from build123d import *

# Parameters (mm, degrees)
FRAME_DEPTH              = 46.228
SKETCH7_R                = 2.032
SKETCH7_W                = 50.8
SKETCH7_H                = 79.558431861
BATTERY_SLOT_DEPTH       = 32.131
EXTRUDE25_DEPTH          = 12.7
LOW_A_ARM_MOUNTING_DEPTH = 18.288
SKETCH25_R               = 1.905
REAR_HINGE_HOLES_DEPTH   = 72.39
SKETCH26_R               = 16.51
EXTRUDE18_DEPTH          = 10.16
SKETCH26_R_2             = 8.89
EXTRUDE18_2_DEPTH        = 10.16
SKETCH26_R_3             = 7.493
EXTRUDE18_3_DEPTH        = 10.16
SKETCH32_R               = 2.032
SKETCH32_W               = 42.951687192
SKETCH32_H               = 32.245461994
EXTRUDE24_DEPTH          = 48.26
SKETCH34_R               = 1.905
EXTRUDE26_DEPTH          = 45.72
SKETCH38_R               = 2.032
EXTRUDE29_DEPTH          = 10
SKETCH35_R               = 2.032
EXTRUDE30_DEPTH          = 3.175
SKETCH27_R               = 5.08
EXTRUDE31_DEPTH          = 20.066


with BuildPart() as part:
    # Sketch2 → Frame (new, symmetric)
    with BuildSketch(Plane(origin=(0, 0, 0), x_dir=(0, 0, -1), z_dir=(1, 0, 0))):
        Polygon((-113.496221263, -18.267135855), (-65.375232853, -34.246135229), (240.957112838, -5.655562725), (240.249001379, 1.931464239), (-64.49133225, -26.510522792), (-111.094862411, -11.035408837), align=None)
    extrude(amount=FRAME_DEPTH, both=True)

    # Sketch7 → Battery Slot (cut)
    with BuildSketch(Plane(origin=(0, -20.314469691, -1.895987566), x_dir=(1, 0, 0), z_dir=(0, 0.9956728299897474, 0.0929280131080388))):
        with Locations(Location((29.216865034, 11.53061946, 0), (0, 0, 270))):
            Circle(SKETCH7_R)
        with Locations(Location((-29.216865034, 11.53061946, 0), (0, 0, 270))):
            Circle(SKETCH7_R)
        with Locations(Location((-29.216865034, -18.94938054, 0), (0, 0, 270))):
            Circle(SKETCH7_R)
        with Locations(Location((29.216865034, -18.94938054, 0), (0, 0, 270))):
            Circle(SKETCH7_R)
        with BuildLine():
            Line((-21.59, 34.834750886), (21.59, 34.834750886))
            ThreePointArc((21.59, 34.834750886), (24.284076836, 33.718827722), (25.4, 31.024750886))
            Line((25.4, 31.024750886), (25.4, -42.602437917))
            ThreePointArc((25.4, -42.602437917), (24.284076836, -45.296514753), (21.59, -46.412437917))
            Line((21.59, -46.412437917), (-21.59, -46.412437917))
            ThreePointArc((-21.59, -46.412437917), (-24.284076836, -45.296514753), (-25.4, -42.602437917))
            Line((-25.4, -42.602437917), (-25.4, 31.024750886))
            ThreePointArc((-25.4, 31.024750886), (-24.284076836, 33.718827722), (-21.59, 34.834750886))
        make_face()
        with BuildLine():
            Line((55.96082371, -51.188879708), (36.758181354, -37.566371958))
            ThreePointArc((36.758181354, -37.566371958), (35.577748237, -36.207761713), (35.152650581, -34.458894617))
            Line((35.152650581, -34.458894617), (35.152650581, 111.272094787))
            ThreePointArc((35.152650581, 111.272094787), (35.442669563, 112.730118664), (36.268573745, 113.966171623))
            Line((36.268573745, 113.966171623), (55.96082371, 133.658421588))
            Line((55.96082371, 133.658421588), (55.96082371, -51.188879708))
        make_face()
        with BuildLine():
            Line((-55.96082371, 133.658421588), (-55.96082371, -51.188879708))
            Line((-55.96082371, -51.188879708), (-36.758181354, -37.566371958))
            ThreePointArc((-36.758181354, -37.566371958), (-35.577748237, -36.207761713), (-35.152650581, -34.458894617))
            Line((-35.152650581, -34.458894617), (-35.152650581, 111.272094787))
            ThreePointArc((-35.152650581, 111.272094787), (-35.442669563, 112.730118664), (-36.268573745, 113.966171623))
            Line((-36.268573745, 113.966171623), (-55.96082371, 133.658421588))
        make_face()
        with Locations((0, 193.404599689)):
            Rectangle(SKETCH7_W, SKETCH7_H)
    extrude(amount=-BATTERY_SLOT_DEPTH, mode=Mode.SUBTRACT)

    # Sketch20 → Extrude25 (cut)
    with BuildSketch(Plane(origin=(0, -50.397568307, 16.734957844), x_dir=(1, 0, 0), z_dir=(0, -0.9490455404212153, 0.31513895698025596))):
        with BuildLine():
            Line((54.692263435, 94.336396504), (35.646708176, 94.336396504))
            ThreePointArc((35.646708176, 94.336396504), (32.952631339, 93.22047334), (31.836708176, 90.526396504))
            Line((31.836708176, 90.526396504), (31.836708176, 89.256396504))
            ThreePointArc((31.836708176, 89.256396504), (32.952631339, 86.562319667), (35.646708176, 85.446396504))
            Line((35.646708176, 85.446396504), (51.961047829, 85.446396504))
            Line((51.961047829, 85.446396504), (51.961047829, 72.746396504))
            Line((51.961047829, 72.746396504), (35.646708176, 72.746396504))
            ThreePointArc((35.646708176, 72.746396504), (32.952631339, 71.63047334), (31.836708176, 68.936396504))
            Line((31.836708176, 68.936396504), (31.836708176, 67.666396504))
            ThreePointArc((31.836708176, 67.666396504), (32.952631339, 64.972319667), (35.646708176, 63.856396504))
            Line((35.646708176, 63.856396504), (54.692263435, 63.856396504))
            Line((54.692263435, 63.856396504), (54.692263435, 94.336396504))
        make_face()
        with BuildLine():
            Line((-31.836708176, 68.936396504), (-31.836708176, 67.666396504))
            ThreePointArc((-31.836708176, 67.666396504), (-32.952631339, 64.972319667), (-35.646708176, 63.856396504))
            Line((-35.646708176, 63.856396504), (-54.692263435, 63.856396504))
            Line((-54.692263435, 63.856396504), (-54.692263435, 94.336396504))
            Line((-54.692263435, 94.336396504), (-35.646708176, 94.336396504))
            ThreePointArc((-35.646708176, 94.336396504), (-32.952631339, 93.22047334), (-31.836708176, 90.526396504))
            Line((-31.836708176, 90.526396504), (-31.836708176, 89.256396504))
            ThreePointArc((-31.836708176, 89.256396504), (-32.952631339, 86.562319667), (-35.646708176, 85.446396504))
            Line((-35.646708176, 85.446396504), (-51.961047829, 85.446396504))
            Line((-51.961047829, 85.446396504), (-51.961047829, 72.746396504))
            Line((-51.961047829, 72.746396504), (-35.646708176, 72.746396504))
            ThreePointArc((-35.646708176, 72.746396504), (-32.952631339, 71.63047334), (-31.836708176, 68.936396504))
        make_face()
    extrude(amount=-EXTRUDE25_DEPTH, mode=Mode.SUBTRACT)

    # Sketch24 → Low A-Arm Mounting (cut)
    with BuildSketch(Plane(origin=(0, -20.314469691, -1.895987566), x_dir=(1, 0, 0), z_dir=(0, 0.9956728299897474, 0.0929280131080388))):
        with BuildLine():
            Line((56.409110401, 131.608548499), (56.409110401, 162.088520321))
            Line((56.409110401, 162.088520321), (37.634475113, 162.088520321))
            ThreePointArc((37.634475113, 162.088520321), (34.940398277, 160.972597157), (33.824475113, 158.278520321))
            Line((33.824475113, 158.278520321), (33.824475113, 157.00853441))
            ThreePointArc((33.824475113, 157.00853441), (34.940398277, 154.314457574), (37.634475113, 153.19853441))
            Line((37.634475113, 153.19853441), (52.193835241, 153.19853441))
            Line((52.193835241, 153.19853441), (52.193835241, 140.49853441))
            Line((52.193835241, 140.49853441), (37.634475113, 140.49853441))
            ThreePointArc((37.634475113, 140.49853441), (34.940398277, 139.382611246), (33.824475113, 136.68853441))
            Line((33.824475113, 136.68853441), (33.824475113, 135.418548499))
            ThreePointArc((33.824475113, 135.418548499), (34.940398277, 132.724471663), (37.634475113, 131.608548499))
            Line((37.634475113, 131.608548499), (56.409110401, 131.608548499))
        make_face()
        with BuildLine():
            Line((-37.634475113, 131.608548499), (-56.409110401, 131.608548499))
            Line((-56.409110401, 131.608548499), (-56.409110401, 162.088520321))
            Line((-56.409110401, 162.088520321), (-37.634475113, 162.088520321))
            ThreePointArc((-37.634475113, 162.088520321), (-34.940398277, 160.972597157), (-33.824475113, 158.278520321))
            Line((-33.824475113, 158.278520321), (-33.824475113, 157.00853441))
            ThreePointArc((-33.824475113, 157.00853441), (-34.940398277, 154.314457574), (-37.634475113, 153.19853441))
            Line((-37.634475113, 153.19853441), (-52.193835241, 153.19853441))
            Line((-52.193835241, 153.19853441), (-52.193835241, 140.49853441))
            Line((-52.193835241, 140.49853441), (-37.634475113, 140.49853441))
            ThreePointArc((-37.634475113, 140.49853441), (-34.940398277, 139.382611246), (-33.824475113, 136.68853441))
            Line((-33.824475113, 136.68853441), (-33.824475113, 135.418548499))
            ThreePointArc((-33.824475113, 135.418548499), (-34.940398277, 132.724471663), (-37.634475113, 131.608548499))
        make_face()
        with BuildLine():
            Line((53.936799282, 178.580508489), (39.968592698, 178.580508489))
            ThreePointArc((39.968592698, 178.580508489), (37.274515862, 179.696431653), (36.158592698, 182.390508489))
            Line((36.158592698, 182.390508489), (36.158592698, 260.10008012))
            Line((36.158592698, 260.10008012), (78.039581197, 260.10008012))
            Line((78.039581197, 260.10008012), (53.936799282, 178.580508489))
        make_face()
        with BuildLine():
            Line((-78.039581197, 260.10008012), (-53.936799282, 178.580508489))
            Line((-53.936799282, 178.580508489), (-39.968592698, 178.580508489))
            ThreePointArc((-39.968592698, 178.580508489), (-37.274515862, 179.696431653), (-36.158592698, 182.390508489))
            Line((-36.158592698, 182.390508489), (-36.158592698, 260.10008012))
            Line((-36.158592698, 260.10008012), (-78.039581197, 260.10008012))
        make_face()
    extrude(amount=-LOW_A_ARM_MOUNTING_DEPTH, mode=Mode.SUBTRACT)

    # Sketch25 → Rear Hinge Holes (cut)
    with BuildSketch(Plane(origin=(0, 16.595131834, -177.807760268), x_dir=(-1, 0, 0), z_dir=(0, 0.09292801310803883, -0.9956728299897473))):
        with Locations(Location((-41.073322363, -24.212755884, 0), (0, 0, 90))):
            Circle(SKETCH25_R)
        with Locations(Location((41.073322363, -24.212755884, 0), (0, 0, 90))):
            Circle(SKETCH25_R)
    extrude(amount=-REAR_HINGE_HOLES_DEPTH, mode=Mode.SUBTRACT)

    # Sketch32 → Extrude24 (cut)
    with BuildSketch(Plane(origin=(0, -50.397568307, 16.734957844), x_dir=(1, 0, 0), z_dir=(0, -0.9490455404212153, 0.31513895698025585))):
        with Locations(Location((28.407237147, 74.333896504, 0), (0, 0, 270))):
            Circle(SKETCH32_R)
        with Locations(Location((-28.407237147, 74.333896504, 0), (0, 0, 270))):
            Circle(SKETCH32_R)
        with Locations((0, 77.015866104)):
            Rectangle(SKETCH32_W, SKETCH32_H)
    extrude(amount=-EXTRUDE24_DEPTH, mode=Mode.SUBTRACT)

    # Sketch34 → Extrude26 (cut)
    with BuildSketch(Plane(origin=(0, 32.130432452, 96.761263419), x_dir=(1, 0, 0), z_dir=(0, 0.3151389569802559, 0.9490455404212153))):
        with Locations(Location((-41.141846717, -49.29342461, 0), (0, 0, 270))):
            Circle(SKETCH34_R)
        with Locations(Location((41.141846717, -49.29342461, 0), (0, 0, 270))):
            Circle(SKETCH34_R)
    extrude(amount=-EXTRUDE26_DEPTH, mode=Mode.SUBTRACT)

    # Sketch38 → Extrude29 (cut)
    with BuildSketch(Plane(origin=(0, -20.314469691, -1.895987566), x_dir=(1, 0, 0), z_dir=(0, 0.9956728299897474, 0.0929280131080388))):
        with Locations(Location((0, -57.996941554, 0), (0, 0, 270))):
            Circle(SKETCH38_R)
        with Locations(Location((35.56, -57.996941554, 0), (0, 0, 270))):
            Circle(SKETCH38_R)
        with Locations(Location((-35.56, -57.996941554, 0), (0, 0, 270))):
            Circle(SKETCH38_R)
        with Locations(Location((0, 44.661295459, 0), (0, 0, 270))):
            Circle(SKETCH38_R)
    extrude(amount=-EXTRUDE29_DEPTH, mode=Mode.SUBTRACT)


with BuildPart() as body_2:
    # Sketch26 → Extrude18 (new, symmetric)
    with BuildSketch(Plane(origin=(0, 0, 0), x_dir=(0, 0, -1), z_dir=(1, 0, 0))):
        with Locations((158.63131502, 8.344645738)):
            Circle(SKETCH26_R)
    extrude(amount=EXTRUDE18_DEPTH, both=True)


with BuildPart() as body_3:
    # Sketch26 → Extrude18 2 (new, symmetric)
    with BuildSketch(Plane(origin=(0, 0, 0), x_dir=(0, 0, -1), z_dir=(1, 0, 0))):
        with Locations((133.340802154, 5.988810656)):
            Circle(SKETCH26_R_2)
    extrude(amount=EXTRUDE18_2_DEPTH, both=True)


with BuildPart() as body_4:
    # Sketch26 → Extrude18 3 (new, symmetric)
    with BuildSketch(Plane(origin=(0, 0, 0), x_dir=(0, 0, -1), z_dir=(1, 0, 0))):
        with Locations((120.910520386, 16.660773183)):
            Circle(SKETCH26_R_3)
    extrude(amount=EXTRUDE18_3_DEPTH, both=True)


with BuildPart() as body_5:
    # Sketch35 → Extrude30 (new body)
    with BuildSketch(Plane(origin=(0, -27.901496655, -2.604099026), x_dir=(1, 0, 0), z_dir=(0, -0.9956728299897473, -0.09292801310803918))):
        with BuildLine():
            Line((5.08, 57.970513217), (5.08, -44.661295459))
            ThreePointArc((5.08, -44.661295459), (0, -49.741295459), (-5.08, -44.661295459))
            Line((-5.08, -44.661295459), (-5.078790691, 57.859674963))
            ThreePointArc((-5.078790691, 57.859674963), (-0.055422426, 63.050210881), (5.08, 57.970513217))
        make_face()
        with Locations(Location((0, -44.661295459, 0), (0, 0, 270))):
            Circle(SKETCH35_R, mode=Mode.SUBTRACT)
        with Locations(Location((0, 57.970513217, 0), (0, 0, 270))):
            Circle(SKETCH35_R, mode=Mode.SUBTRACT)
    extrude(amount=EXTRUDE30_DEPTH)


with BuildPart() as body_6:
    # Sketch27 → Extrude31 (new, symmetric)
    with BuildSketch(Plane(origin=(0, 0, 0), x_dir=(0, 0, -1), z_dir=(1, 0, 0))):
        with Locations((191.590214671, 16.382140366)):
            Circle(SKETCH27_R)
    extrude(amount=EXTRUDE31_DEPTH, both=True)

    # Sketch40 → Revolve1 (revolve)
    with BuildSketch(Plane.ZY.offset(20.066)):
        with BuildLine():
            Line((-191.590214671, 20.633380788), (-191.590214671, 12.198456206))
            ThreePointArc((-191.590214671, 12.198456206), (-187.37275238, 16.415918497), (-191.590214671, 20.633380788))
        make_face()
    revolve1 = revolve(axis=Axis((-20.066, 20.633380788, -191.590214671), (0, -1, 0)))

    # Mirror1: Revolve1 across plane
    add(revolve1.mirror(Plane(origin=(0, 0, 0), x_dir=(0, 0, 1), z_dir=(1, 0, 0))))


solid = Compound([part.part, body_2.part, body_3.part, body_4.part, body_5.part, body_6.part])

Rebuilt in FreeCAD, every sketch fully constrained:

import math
import FreeCAD as App
import Part
import Sketcher
Q = App.Units.Quantity

doc = App.newDocument("Part")
body = doc.addObject("PartDesign::Body", "Body")

# Sketch on YZ plane
sketch1 = body.newObject("Sketcher::SketchObject", "Sketch")
sketch1.AttachmentSupport = (doc.getObject("YZ_Plane"), [""])
sketch1.MapMode = "FlatFace"
sketch1.addGeometry([
    Part.LineSegment(App.Vector(-18, 113, 0), App.Vector(-34, 65, 0)),  # 0
    Part.LineSegment(App.Vector(-34, 65, 0), App.Vector(-6, -241, 0)),  # 1
    Part.LineSegment(App.Vector(-6, -241, 0), App.Vector(2, -240, 0)),  # 2
    Part.LineSegment(App.Vector(2, -240, 0), App.Vector(-27, 64, 0)),  # 3
    Part.LineSegment(App.Vector(-27, 64, 0), App.Vector(-11, 111, 0)),  # 4
    Part.LineSegment(App.Vector(-11, 111, 0), App.Vector(-18, 113, 0)),  # 5
], False)
sketch1.addConstraint([
    Sketcher.Constraint("Coincident", 0, 2, 1, 1),
    Sketcher.Constraint("Coincident", 1, 2, 2, 1),
    Sketcher.Constraint("Coincident", 2, 2, 3, 1),
    Sketcher.Constraint("Coincident", 3, 2, 4, 1),
    Sketcher.Constraint("Coincident", 4, 2, 5, 1),
    Sketcher.Constraint("Coincident", 5, 2, 0, 1),
    Sketcher.Constraint("Perpendicular", 1, 2),
    Sketcher.Constraint("Perpendicular", 2, 3),
    Sketcher.Constraint("Parallel", 0, 4),
    Sketcher.Constraint("Perpendicular", 4, 5),
    Sketcher.Constraint("Equal", 2, 5),
    Sketcher.Constraint("Distance", 2, Q("0.3 in")),
    Sketcher.Constraint("DistanceY", 2, 2, -1, 1, Q("240.249001 mm")),
    Sketcher.Constraint("DistanceX", 0, 2, 2, 2, Q("36.177599 mm")),
    Sketcher.Constraint("DistanceY", 3, 2, 0, 2, Q("0.883901 mm")),
    Sketcher.Constraint("DistanceX", 0, 2, 5, 2, Q("15.978999 mm")),
    Sketcher.Constraint("Distance", 1, Q("307.663659 mm")),
    Sketcher.Constraint("DistanceX", 4, 2, -1, 1, Q("11.035409 mm")),
])
pad1 = body.newObject("PartDesign::Pad", "Pad")
pad1.Profile = sketch1
pad1.Length = Q("3.64 in")
pad1.Midplane = True

# Sketch on an angled plane
sketch2 = body.newObject("Sketcher::SketchObject", "Sketch001")
sketch2.Placement = App.Placement(App.Vector(0, -20.31447, -1.895988), App.Rotation(App.Vector(1, 0, 0), App.Vector(0, 0.092928013, -0.99567283), App.Vector(0, 0.99567283, 0.092928013), "ZXY"))
sketch2.addGeometry([
    Part.Circle(App.Vector(29.2, 11.5, 0), App.Vector(0, 0, 1), 2),  # 0
    Part.Circle(App.Vector(-29.2, 11.5, 0), App.Vector(0, 0, 1), 2),  # 1
    Part.Circle(App.Vector(-29.2, -18.9, 0), App.Vector(0, 0, 1), 2),  # 2
    Part.Circle(App.Vector(29.2, -18.9, 0), App.Vector(0, 0, 1), 2),  # 3
    Part.LineSegment(App.Vector(21.6, 34.8, 0), App.Vector(-21.6, 34.8, 0)),  # 4
    Part.ArcOfCircle(Part.Circle(App.Vector(-21.6, 31, 0), App.Vector(0, 0, 1), 3.8), math.radians(90), math.radians(180)),  # 5
    Part.LineSegment(App.Vector(-25.4, 31, 0), App.Vector(-25.4, -42.6, 0)),  # 6
    Part.ArcOfCircle(Part.Circle(App.Vector(-21.6, -42.6, 0), App.Vector(0, 0, 1), 3.8), math.radians(-180), math.radians(-90)),  # 7
    Part.LineSegment(App.Vector(-21.6, -46.4, 0), App.Vector(21.6, -46.4, 0)),  # 8
    Part.ArcOfCircle(Part.Circle(App.Vector(21.6, -42.6, 0), App.Vector(0, 0, 1), 3.8), math.radians(-90), math.radians(0)),  # 9
    Part.LineSegment(App.Vector(25.4, -42.6, 0), App.Vector(25.4, 31, 0)),  # 10
    Part.ArcOfCircle(Part.Circle(App.Vector(21.6, 31, 0), App.Vector(0, 0, 1), 3.8), math.radians(0), math.radians(90)),  # 11
    Part.LineSegment(App.Vector(36.8, -37.6, 0), App.Vector(56, -51.2, 0)),  # 12
    Part.LineSegment(App.Vector(56, -51.2, 0), App.Vector(56, 133.7, 0)),  # 13
    Part.LineSegment(App.Vector(56, 133.7, 0), App.Vector(36.3, 114, 0)),  # 14
    Part.ArcOfCircle(Part.Circle(App.Vector(39, 111.3, 0), App.Vector(0, 0, 1), 3.8), math.radians(135), math.radians(180)),  # 15
    Part.LineSegment(App.Vector(35.2, 111.3, 0), App.Vector(35.2, -34.5, 0)),  # 16
    Part.ArcOfCircle(Part.Circle(App.Vector(39, -34.5, 0), App.Vector(0, 0, 1), 3.8), math.radians(-180), math.radians(-125)),  # 17
    Part.LineSegment(App.Vector(-56, 133.7, 0), App.Vector(-56, -51.2, 0)),  # 18
    Part.LineSegment(App.Vector(-56, -51.2, 0), App.Vector(-36.8, -37.6, 0)),  # 19
    Part.ArcOfCircle(Part.Circle(App.Vector(-39, -34.5, 0), App.Vector(0, 0, 1), 3.8), math.radians(-55), math.radians(0)),  # 20
    Part.LineSegment(App.Vector(-35.2, -34.5, 0), App.Vector(-35.2, 111.3, 0)),  # 21
    Part.ArcOfCircle(Part.Circle(App.Vector(-39, 111.3, 0), App.Vector(0, 0, 1), 3.8), math.radians(0), math.radians(45)),  # 22
    Part.LineSegment(App.Vector(-36.3, 114, 0), App.Vector(-56, 133.7, 0)),  # 23
    Part.LineSegment(App.Vector(-25.4, 233.2, 0), App.Vector(-25.4, 153.6, 0)),  # 24
    Part.LineSegment(App.Vector(-25.4, 153.6, 0), App.Vector(25.4, 153.6, 0)),  # 25
    Part.LineSegment(App.Vector(25.4, 153.6, 0), App.Vector(25.4, 233.2, 0)),  # 26
    Part.LineSegment(App.Vector(25.4, 233.2, 0), App.Vector(-25.4, 233.2, 0)),  # 27
], False)
sketch2.addConstraint([
    Sketcher.Constraint("Tangent", 4, 2, 5, 1),
    Sketcher.Constraint("Tangent", 5, 2, 6, 1),
    Sketcher.Constraint("Tangent", 6, 2, 7, 1),
    Sketcher.Constraint("Tangent", 7, 2, 8, 1),
    Sketcher.Constraint("Tangent", 8, 2, 9, 1),
    Sketcher.Constraint("Tangent", 9, 2, 10, 1),
    Sketcher.Constraint("Tangent", 10, 2, 11, 1),
    Sketcher.Constraint("Tangent", 11, 2, 4, 1),
    Sketcher.Constraint("Coincident", 12, 2, 13, 1),
    Sketcher.Constraint("Coincident", 13, 2, 14, 1),
    Sketcher.Constraint("Tangent", 14, 2, 15, 1),
    Sketcher.Constraint("Tangent", 15, 2, 16, 1),
    Sketcher.Constraint("Tangent", 16, 2, 17, 1),
    Sketcher.Constraint("Tangent", 17, 2, 12, 1),
    Sketcher.Constraint("Coincident", 18, 2, 19, 1),
    Sketcher.Constraint("Tangent", 19, 2, 20, 1),
    Sketcher.Constraint("Tangent", 20, 2, 21, 1),
    Sketcher.Constraint("Tangent", 21, 2, 22, 1),
    Sketcher.Constraint("Tangent", 22, 2, 23, 1),
    Sketcher.Constraint("Coincident", 23, 2, 18, 1),
    Sketcher.Constraint("Coincident", 24, 2, 25, 1),
    Sketcher.Constraint("Coincident", 25, 2, 26, 1),
    Sketcher.Constraint("Coincident", 26, 2, 27, 1),
    Sketcher.Constraint("Coincident", 27, 2, 24, 1),
    Sketcher.Constraint("Horizontal", 4),
    Sketcher.Constraint("Vertical", 6),
    Sketcher.Constraint("Horizontal", 8),
    Sketcher.Constraint("Vertical", 10),
    Sketcher.Constraint("Vertical", 13),
    Sketcher.Constraint("Vertical", 16),
    Sketcher.Constraint("Vertical", 18),
    Sketcher.Constraint("Vertical", 21),
    Sketcher.Constraint("Vertical", 24),
    Sketcher.Constraint("Horizontal", 25),
    Sketcher.Constraint("Vertical", 26),
    Sketcher.Constraint("Horizontal", 27),
    Sketcher.Constraint("Equal", 0, 1),
    Sketcher.Constraint("Equal", 1, 2),
    Sketcher.Constraint("Equal", 2, 3),
    Sketcher.Constraint("Equal", 5, 7),
    Sketcher.Constraint("Equal", 7, 9),
    Sketcher.Constraint("Equal", 9, 11),
    Sketcher.Constraint("Equal", 11, 15),
    Sketcher.Constraint("Equal", 15, 17),
    Sketcher.Constraint("Equal", 17, 20),
    Sketcher.Constraint("Equal", 20, 22),
    Sketcher.Constraint("Symmetric", 0, 3, 1, 3, -2),
    Sketcher.Constraint("Symmetric", 2, 3, 3, 3, -2),
    Sketcher.Constraint("Symmetric", 17, 3, 20, 3, -2),
    Sketcher.Constraint("Symmetric", 12, 2, 18, 2, -2),
    Sketcher.Constraint("Symmetric", 14, 2, 22, 2, -2),
    Sketcher.Constraint("Perpendicular", 14, 23),
    Sketcher.Constraint("Vertical", 1, 3, 2, 3),
    Sketcher.Constraint("Vertical", 6, 2, 24, 2),
    Sketcher.Constraint("Vertical", 10, 2, 25, 2),
    Sketcher.Constraint("Diameter", 0, Q("0.16 in")),
    Sketcher.Constraint("DistanceX", 25, 1, 25, 2, Q("2 in")),
    Sketcher.Constraint("Radius", 5, Q("0.15 in")),
    Sketcher.Constraint("DistanceX", 5, 2, -1, 1, Q("1 in")),
    Sketcher.Constraint("DistanceY", 2, 3, 1, 3, Q("1.2 in")),
    Sketcher.Constraint("DistanceY", 13, 1, 13, 2, Q("184.847301 mm")),
    Sketcher.Constraint("DistanceY", 6, 2, 6, 1, Q("73.627189 mm")),
    Sketcher.Constraint("DistanceY", 16, 2, 16, 1, Q("145.730989 mm")),
    Sketcher.Constraint("DistanceY", 24, 2, 24, 1, Q("79.558432 mm")),
    Sketcher.Constraint("DistanceX", 22, 3, 15, 3, Q("77.925301 mm")),
    Sketcher.Constraint("DistanceY", 12, 2, 3, 3, Q("32.239499 mm")),
    Sketcher.Constraint("DistanceY", -1, 1, 0, 3, Q("11.530619 mm")),
    Sketcher.Constraint("DistanceY", -1, 1, 5, 3, Q("31.024751 mm")),
    Sketcher.Constraint("DistanceY", -1, 1, 14, 2, Q("113.966172 mm")),
    Sketcher.Constraint("DistanceX", 1, 3, 0, 3, Q("58.43373 mm")),
    Sketcher.Constraint("DistanceY", 21, 2, 24, 2, Q("42.353289 mm")),
])
pocket1 = body.newObject("PartDesign::Pocket", "Pocket")
pocket1.Profile = sketch2
pocket1.Length = Q("1.265 in")

# Sketch on an angled plane
sketch3 = body.newObject("Sketcher::SketchObject", "Sketch002")
sketch3.Placement = App.Placement(App.Vector(0, -50.397568, 16.734958), App.Rotation(App.Vector(1, 0, 0), App.Vector(0, 0.315138957, 0.94904554), App.Vector(0, -0.94904554, 0.315138957), "ZXY"))
sketch3.addGeometry([
    Part.LineSegment(App.Vector(54.7, 94.3, 0), App.Vector(35.6, 94.3, 0)),  # 0
    Part.ArcOfCircle(Part.Circle(App.Vector(35.6, 90.5, 0), App.Vector(0, 0, 1), 3.8), math.radians(90), math.radians(180)),  # 1
    Part.LineSegment(App.Vector(31.8, 90.5, 0), App.Vector(31.8, 89.3, 0)),  # 2
    Part.ArcOfCircle(Part.Circle(App.Vector(35.6, 89.3, 0), App.Vector(0, 0, 1), 3.8), math.radians(180), math.radians(270)),  # 3
    Part.LineSegment(App.Vector(35.6, 85.4, 0), App.Vector(52, 85.4, 0)),  # 4
    Part.LineSegment(App.Vector(52, 85.4, 0), App.Vector(52, 72.7, 0)),  # 5
    Part.LineSegment(App.Vector(52, 72.7, 0), App.Vector(35.6, 72.7, 0)),  # 6
    Part.ArcOfCircle(Part.Circle(App.Vector(35.6, 68.9, 0), App.Vector(0, 0, 1), 3.8), math.radians(90), math.radians(180)),  # 7
    Part.LineSegment(App.Vector(31.8, 68.9, 0), App.Vector(31.8, 67.7, 0)),  # 8
    Part.ArcOfCircle(Part.Circle(App.Vector(35.6, 67.7, 0), App.Vector(0, 0, 1), 3.8), math.radians(180), math.radians(270)),  # 9
    Part.LineSegment(App.Vector(35.6, 63.9, 0), App.Vector(54.7, 63.9, 0)),  # 10
    Part.LineSegment(App.Vector(54.7, 63.9, 0), App.Vector(54.7, 94.3, 0)),  # 11
    Part.LineSegment(App.Vector(-31.8, 67.7, 0), App.Vector(-31.8, 68.9, 0)),  # 12
    Part.ArcOfCircle(Part.Circle(App.Vector(-35.6, 68.9, 0), App.Vector(0, 0, 1), 3.8), math.radians(0), math.radians(90)),  # 13
    Part.LineSegment(App.Vector(-35.6, 72.7, 0), App.Vector(-52, 72.7, 0)),  # 14
    Part.LineSegment(App.Vector(-52, 72.7, 0), App.Vector(-52, 85.4, 0)),  # 15
    Part.LineSegment(App.Vector(-52, 85.4, 0), App.Vector(-35.6, 85.4, 0)),  # 16
    Part.ArcOfCircle(Part.Circle(App.Vector(-35.6, 89.3, 0), App.Vector(0, 0, 1), 3.8), math.radians(-90), math.radians(0)),  # 17
    Part.LineSegment(App.Vector(-31.8, 89.3, 0), App.Vector(-31.8, 90.5, 0)),  # 18
    Part.ArcOfCircle(Part.Circle(App.Vector(-35.6, 90.5, 0), App.Vector(0, 0, 1), 3.8), math.radians(0), math.radians(90)),  # 19
    Part.LineSegment(App.Vector(-35.6, 94.3, 0), App.Vector(-54.7, 94.3, 0)),  # 20
    Part.LineSegment(App.Vector(-54.7, 94.3, 0), App.Vector(-54.7, 63.9, 0)),  # 21
    Part.LineSegment(App.Vector(-54.7, 63.9, 0), App.Vector(-35.6, 63.9, 0)),  # 22
    Part.ArcOfCircle(Part.Circle(App.Vector(-35.6, 67.7, 0), App.Vector(0, 0, 1), 3.8), math.radians(-90), math.radians(0)),  # 23
], False)
sketch3.addConstraint([
    Sketcher.Constraint("Tangent", 0, 2, 1, 1),
    Sketcher.Constraint("Tangent", 1, 2, 2, 1),
    Sketcher.Constraint("Tangent", 2, 2, 3, 1),
    Sketcher.Constraint("Tangent", 3, 2, 4, 1),
    Sketcher.Constraint("Coincident", 4, 2, 5, 1),
    Sketcher.Constraint("Coincident", 5, 2, 6, 1),
    Sketcher.Constraint("Tangent", 6, 2, 7, 1),
    Sketcher.Constraint("Tangent", 7, 2, 8, 1),
    Sketcher.Constraint("Tangent", 8, 2, 9, 1),
    Sketcher.Constraint("Tangent", 9, 2, 10, 1),
    Sketcher.Constraint("Coincident", 10, 2, 11, 1),
    Sketcher.Constraint("Coincident", 11, 2, 0, 1),
    Sketcher.Constraint("Tangent", 12, 2, 13, 1),
    Sketcher.Constraint("Tangent", 13, 2, 14, 1),
    Sketcher.Constraint("Coincident", 14, 2, 15, 1),
    Sketcher.Constraint("Coincident", 15, 2, 16, 1),
    Sketcher.Constraint("Tangent", 16, 2, 17, 1),
    Sketcher.Constraint("Tangent", 17, 2, 18, 1),
    Sketcher.Constraint("Tangent", 18, 2, 19, 1),
    Sketcher.Constraint("Tangent", 19, 2, 20, 1),
    Sketcher.Constraint("Coincident", 20, 2, 21, 1),
    Sketcher.Constraint("Coincident", 21, 2, 22, 1),
    Sketcher.Constraint("Tangent", 22, 2, 23, 1),
    Sketcher.Constraint("Tangent", 23, 2, 12, 1),
    Sketcher.Constraint("Horizontal", 0),
    Sketcher.Constraint("Vertical", 2),
    Sketcher.Constraint("Horizontal", 4),
    Sketcher.Constraint("Vertical", 5),
    Sketcher.Constraint("Horizontal", 6),
    Sketcher.Constraint("Vertical", 8),
    Sketcher.Constraint("Horizontal", 10),
    Sketcher.Constraint("Vertical", 11),
    Sketcher.Constraint("Vertical", 12),
    Sketcher.Constraint("Horizontal", 14),
    Sketcher.Constraint("Vertical", 15),
    Sketcher.Constraint("Horizontal", 16),
    Sketcher.Constraint("Vertical", 18),
    Sketcher.Constraint("Horizontal", 20),
    Sketcher.Constraint("Vertical", 21),
    Sketcher.Constraint("Horizontal", 22),
    Sketcher.Constraint("Equal", 1, 3),
    Sketcher.Constraint("Equal", 3, 7),
    Sketcher.Constraint("Equal", 7, 9),
    Sketcher.Constraint("Equal", 9, 13),
    Sketcher.Constraint("Equal", 13, 17),
    Sketcher.Constraint("Equal", 17, 19),
    Sketcher.Constraint("Equal", 19, 23),
    Sketcher.Constraint("Symmetric", 7, 3, 13, 3, -2),
    Sketcher.Constraint("Symmetric", 3, 3, 17, 3, -2),
    Sketcher.Constraint("Symmetric", 11, 2, 20, 2, -2),
    Sketcher.Constraint("Horizontal", 9, 3, 23, 3),
    Sketcher.Constraint("Vertical", 3, 3, 7, 3),
    Sketcher.Constraint("Equal", 6, 14),
    Sketcher.Constraint("Equal", 2, 8),
    Sketcher.Constraint("Radius", 1, Q("0.15 in")),
    Sketcher.Constraint("DistanceY", 5, 2, 5, 1, Q("0.5 in")),
    Sketcher.Constraint("DistanceY", 11, 1, 11, 2, Q("1.2 in")),
    Sketcher.Constraint("DistanceX", 4, 1, 4, 2, Q("16.31434 mm")),
    Sketcher.Constraint("DistanceX", 0, 2, 0, 1, Q("19.045555 mm")),
    Sketcher.Constraint("DistanceX", -1, 1, 1, 3, Q("35.646708 mm")),
    Sketcher.Constraint("DistanceY", -1, 1, 1, 3, Q("90.526396 mm")),
])
pocket2 = body.newObject("PartDesign::Pocket", "Pocket001")
pocket2.Profile = sketch3
pocket2.Length = Q("0.5 in")

# Sketch on an angled plane
sketch4 = body.newObject("Sketcher::SketchObject", "Sketch003")
sketch4.Placement = App.Placement(App.Vector(0, -20.31447, -1.895988), App.Rotation(App.Vector(1, 0, 0), App.Vector(0, 0.092928013, -0.99567283), App.Vector(0, 0.99567283, 0.092928013), "ZXY"))
sketch4.addGeometry([
    Part.LineSegment(App.Vector(56.4, 131.6, 0), App.Vector(56.4, 162.1, 0)),  # 0
    Part.LineSegment(App.Vector(56.4, 162.1, 0), App.Vector(37.6, 162.1, 0)),  # 1
    Part.ArcOfCircle(Part.Circle(App.Vector(37.6, 158.3, 0), App.Vector(0, 0, 1), 3.8), math.radians(90), math.radians(180)),  # 2
    Part.LineSegment(App.Vector(33.8, 158.3, 0), App.Vector(33.8, 157, 0)),  # 3
    Part.ArcOfCircle(Part.Circle(App.Vector(37.6, 157, 0), App.Vector(0, 0, 1), 3.8), math.radians(-180), math.radians(-90)),  # 4
    Part.LineSegment(App.Vector(37.6, 153.2, 0), App.Vector(52.2, 153.2, 0)),  # 5
    Part.LineSegment(App.Vector(52.2, 153.2, 0), App.Vector(52.2, 140.5, 0)),  # 6
    Part.LineSegment(App.Vector(52.2, 140.5, 0), App.Vector(37.6, 140.5, 0)),  # 7
    Part.ArcOfCircle(Part.Circle(App.Vector(37.6, 136.7, 0), App.Vector(0, 0, 1), 3.8), math.radians(90), math.radians(180)),  # 8
    Part.LineSegment(App.Vector(33.8, 136.7, 0), App.Vector(33.8, 135.4, 0)),  # 9
    Part.ArcOfCircle(Part.Circle(App.Vector(37.6, 135.4, 0), App.Vector(0, 0, 1), 3.8), math.radians(-180), math.radians(-90)),  # 10
    Part.LineSegment(App.Vector(37.6, 131.6, 0), App.Vector(56.4, 131.6, 0)),  # 11
    Part.LineSegment(App.Vector(-56.4, 131.6, 0), App.Vector(-37.6, 131.6, 0)),  # 12
    Part.ArcOfCircle(Part.Circle(App.Vector(-37.6, 135.4, 0), App.Vector(0, 0, 1), 3.8), math.radians(-90), math.radians(0)),  # 13
    Part.LineSegment(App.Vector(-33.8, 135.4, 0), App.Vector(-33.8, 136.7, 0)),  # 14
    Part.ArcOfCircle(Part.Circle(App.Vector(-37.6, 136.7, 0), App.Vector(0, 0, 1), 3.8), math.radians(0), math.radians(90)),  # 15
    Part.LineSegment(App.Vector(-37.6, 140.5, 0), App.Vector(-52.2, 140.5, 0)),  # 16
    Part.LineSegment(App.Vector(-52.2, 140.5, 0), App.Vector(-52.2, 153.2, 0)),  # 17
    Part.LineSegment(App.Vector(-52.2, 153.2, 0), App.Vector(-37.6, 153.2, 0)),  # 18
    Part.ArcOfCircle(Part.Circle(App.Vector(-37.6, 157, 0), App.Vector(0, 0, 1), 3.8), math.radians(-90), math.radians(0)),  # 19
    Part.LineSegment(App.Vector(-33.8, 157, 0), App.Vector(-33.8, 158.3, 0)),  # 20
    Part.ArcOfCircle(Part.Circle(App.Vector(-37.6, 158.3, 0), App.Vector(0, 0, 1), 3.8), math.radians(0), math.radians(90)),  # 21
    Part.LineSegment(App.Vector(-37.6, 162.1, 0), App.Vector(-56.4, 162.1, 0)),  # 22
    Part.LineSegment(App.Vector(-56.4, 162.1, 0), App.Vector(-56.4, 131.6, 0)),  # 23
    Part.LineSegment(App.Vector(40, 178.6, 0), App.Vector(53.9, 178.6, 0)),  # 24
    Part.LineSegment(App.Vector(53.9, 178.6, 0), App.Vector(78, 260.1, 0)),  # 25
    Part.LineSegment(App.Vector(78, 260.1, 0), App.Vector(36.2, 260.1, 0)),  # 26
    Part.LineSegment(App.Vector(36.2, 260.1, 0), App.Vector(36.2, 182.4, 0)),  # 27
    Part.ArcOfCircle(Part.Circle(App.Vector(40, 182.4, 0), App.Vector(0, 0, 1), 3.8), math.radians(-180), math.radians(-90)),  # 28
    Part.LineSegment(App.Vector(-78, 260.1, 0), App.Vector(-53.9, 178.6, 0)),  # 29
    Part.LineSegment(App.Vector(-53.9, 178.6, 0), App.Vector(-40, 178.6, 0)),  # 30
    Part.ArcOfCircle(Part.Circle(App.Vector(-40, 182.4, 0), App.Vector(0, 0, 1), 3.8), math.radians(-90), math.radians(0)),  # 31
    Part.LineSegment(App.Vector(-36.2, 182.4, 0), App.Vector(-36.2, 260.1, 0)),  # 32
    Part.LineSegment(App.Vector(-36.2, 260.1, 0), App.Vector(-78, 260.1, 0)),  # 33
], False)
sketch4.addConstraint([
    Sketcher.Constraint("Coincident", 0, 2, 1, 1),
    Sketcher.Constraint("Tangent", 1, 2, 2, 1),
    Sketcher.Constraint("Tangent", 2, 2, 3, 1),
    Sketcher.Constraint("Tangent", 3, 2, 4, 1),
    Sketcher.Constraint("Tangent", 4, 2, 5, 1),
    Sketcher.Constraint("Coincident", 5, 2, 6, 1),
    Sketcher.Constraint("Coincident", 6, 2, 7, 1),
    Sketcher.Constraint("Tangent", 7, 2, 8, 1),
    Sketcher.Constraint("Tangent", 8, 2, 9, 1),
    Sketcher.Constraint("Tangent", 9, 2, 10, 1),
    Sketcher.Constraint("Tangent", 10, 2, 11, 1),
    Sketcher.Constraint("Coincident", 11, 2, 0, 1),
    Sketcher.Constraint("Tangent", 12, 2, 13, 1),
    Sketcher.Constraint("Tangent", 13, 2, 14, 1),
    Sketcher.Constraint("Tangent", 14, 2, 15, 1),
    Sketcher.Constraint("Tangent", 15, 2, 16, 1),
    Sketcher.Constraint("Coincident", 16, 2, 17, 1),
    Sketcher.Constraint("Coincident", 17, 2, 18, 1),
    Sketcher.Constraint("Tangent", 18, 2, 19, 1),
    Sketcher.Constraint("Tangent", 19, 2, 20, 1),
    Sketcher.Constraint("Tangent", 20, 2, 21, 1),
    Sketcher.Constraint("Tangent", 21, 2, 22, 1),
    Sketcher.Constraint("Coincident", 22, 2, 23, 1),
    Sketcher.Constraint("Coincident", 23, 2, 12, 1),
    Sketcher.Constraint("Coincident", 24, 2, 25, 1),
    Sketcher.Constraint("Coincident", 25, 2, 26, 1),
    Sketcher.Constraint("Coincident", 26, 2, 27, 1),
    Sketcher.Constraint("Tangent", 27, 2, 28, 1),
    Sketcher.Constraint("Tangent", 28, 2, 24, 1),
    Sketcher.Constraint("Coincident", 29, 2, 30, 1),
    Sketcher.Constraint("Tangent", 30, 2, 31, 1),
    Sketcher.Constraint("Tangent", 31, 2, 32, 1),
    Sketcher.Constraint("Coincident", 32, 2, 33, 1),
    Sketcher.Constraint("Coincident", 33, 2, 29, 1),
    Sketcher.Constraint("Vertical", 0),
    Sketcher.Constraint("Horizontal", 1),
    Sketcher.Constraint("Vertical", 3),
    Sketcher.Constraint("Horizontal", 5),
    Sketcher.Constraint("Vertical", 6),
    Sketcher.Constraint("Horizontal", 7),
    Sketcher.Constraint("Vertical", 9),
    Sketcher.Constraint("Horizontal", 11),
    Sketcher.Constraint("Horizontal", 12),
    Sketcher.Constraint("Vertical", 14),
    Sketcher.Constraint("Horizontal", 16),
    Sketcher.Constraint("Vertical", 17),
    Sketcher.Constraint("Horizontal", 18),
    Sketcher.Constraint("Vertical", 20),
    Sketcher.Constraint("Horizontal", 22),
    Sketcher.Constraint("Vertical", 23),
    Sketcher.Constraint("Horizontal", 24),
    Sketcher.Constraint("Horizontal", 26),
    Sketcher.Constraint("Vertical", 27),
    Sketcher.Constraint("Horizontal", 30),
    Sketcher.Constraint("Vertical", 32),
    Sketcher.Constraint("Horizontal", 33),
    Sketcher.Constraint("Equal", 2, 4),
    Sketcher.Constraint("Equal", 4, 8),
    Sketcher.Constraint("Equal", 8, 10),
    Sketcher.Constraint("Equal", 10, 13),
    Sketcher.Constraint("Equal", 13, 15),
    Sketcher.Constraint("Equal", 15, 19),
    Sketcher.Constraint("Equal", 19, 21),
    Sketcher.Constraint("Equal", 21, 28),
    Sketcher.Constraint("Equal", 28, 31),
    Sketcher.Constraint("Symmetric", 10, 3, 13, 3, -2),
    Sketcher.Constraint("Symmetric", 4, 3, 19, 3, -2),
    Sketcher.Constraint("Symmetric", 28, 3, 31, 3, -2),
    Sketcher.Constraint("Symmetric", 6, 2, 16, 2, -2),
    Sketcher.Constraint("Symmetric", 0, 2, 22, 2, -2),
    Sketcher.Constraint("Symmetric", 25, 2, 33, 2, -2),
    Sketcher.Constraint("Vertical", 4, 3, 8, 3),
    Sketcher.Constraint("Equal", 24, 30),
    Sketcher.Constraint("Equal", 3, 9),
    Sketcher.Constraint("Radius", 2, Q("0.15 in")),
    Sketcher.Constraint("DistanceY", 6, 2, 6, 1, Q("0.5 in")),
    Sketcher.Constraint("DistanceX", 5, 1, 5, 2, Q("14.55936 mm")),
    Sketcher.Constraint("DistanceX", 26, 2, 26, 1, Q("41.880988 mm")),
    Sketcher.Constraint("DistanceY", 0, 1, 0, 2, Q("30.479972 mm")),
    Sketcher.Constraint("DistanceY", 27, 2, 27, 1, Q("77.709572 mm")),
    Sketcher.Constraint("DistanceX", -1, 1, 24, 2, Q("53.936799 mm")),
    Sketcher.Constraint("DistanceX", 1, 2, 1, 1, Q("18.774635 mm")),
    Sketcher.Constraint("DistanceX", 24, 1, 24, 2, Q("13.968207 mm")),
    Sketcher.Constraint("DistanceY", -1, 1, 2, 3, Q("158.27852 mm")),
    Sketcher.Constraint("DistanceY", -1, 1, 28, 3, Q("182.390508 mm")),
    Sketcher.Constraint("DistanceX", -1, 1, 0, 2, Q("56.40911 mm")),
])
pocket3 = body.newObject("PartDesign::Pocket", "Pocket002")
pocket3.Profile = sketch4
pocket3.Length = Q("0.72 in")

# Sketch on an angled plane
sketch5 = body.newObject("Sketcher::SketchObject", "Sketch004")
sketch5.Placement = App.Placement(App.Vector(0, 16.595132, -177.80776), App.Rotation(App.Vector(-1, 0, 0), App.Vector(0, 0.99567283, 0.092928013), App.Vector(0, 0.092928013, -0.99567283), "ZXY"))
sketch5.addGeometry([
    Part.Circle(App.Vector(-41.1, -24.2, 0), App.Vector(0, 0, 1), 1.9),
    Part.Circle(App.Vector(41.1, -24.2, 0), App.Vector(0, 0, 1), 1.9),
], False)
sketch5.addConstraint([
    Sketcher.Constraint("Equal", 0, 1),
    Sketcher.Constraint("Symmetric", 0, 3, 1, 3, -2),
    Sketcher.Constraint("Diameter", 0, Q("0.15 in")),
    Sketcher.Constraint("DistanceX", 0, 3, -1, 1, Q("41.073322 mm")),
    Sketcher.Constraint("DistanceY", 0, 3, -1, 1, Q("24.212756 mm")),
])
pocket4 = body.newObject("PartDesign::Pocket", "Pocket003")
pocket4.Profile = sketch5
pocket4.Length = Q("2.85 in")

# Sketch on an angled plane
sketch6 = body.newObject("Sketcher::SketchObject", "Sketch005")
sketch6.Placement = App.Placement(App.Vector(0, -50.397568, 16.734958), App.Rotation(App.Vector(1, 0, 0), App.Vector(0, 0.315138957, 0.94904554), App.Vector(0, -0.94904554, 0.315138957), "ZXY"))
sketch6.addGeometry([
    Part.Circle(App.Vector(28.4, 74.3, 0), App.Vector(0, 0, 1), 2),  # 0
    Part.Circle(App.Vector(-28.4, 74.3, 0), App.Vector(0, 0, 1), 2),  # 1
    Part.LineSegment(App.Vector(-21.5, 93.1, 0), App.Vector(-21.5, 60.9, 0)),  # 2
    Part.LineSegment(App.Vector(-21.5, 60.9, 0), App.Vector(21.5, 60.9, 0)),  # 3
    Part.LineSegment(App.Vector(21.5, 60.9, 0), App.Vector(21.5, 93.1, 0)),  # 4
    Part.LineSegment(App.Vector(21.5, 93.1, 0), App.Vector(-21.5, 93.1, 0)),  # 5
], False)
sketch6.addConstraint([
    Sketcher.Constraint("Coincident", 2, 2, 3, 1),
    Sketcher.Constraint("Coincident", 3, 2, 4, 1),
    Sketcher.Constraint("Coincident", 4, 2, 5, 1),
    Sketcher.Constraint("Coincident", 5, 2, 2, 1),
    Sketcher.Constraint("Vertical", 2),
    Sketcher.Constraint("Horizontal", 3),
    Sketcher.Constraint("Vertical", 4),
    Sketcher.Constraint("Horizontal", 5),
    Sketcher.Constraint("Equal", 0, 1),
    Sketcher.Constraint("Symmetric", 0, 3, 1, 3, -2),
    Sketcher.Constraint("Diameter", 0, Q("0.16 in")),
    Sketcher.Constraint("DistanceY", 2, 2, 2, 1, Q("32.245462 mm")),
    Sketcher.Constraint("DistanceY", 0, 3, 4, 2, Q("18.804701 mm")),
    Sketcher.Constraint("DistanceX", 3, 1, 3, 2, Q("42.951687 mm")),
    Sketcher.Constraint("DistanceX", 2, 2, 0, 3, Q("49.883081 mm")),
    Sketcher.Constraint("DistanceX", 1, 3, 3, 2, Q("49.883081 mm")),
    Sketcher.Constraint("DistanceY", -1, 1, 0, 3, Q("74.333896 mm")),
])
pocket5 = body.newObject("PartDesign::Pocket", "Pocket004")
pocket5.Profile = sketch6
pocket5.Length = Q("1.9 in")

# Sketch on an angled plane
sketch7 = body.newObject("Sketcher::SketchObject", "Sketch006")
sketch7.Placement = App.Placement(App.Vector(0, 32.130432, 96.761263), App.Rotation(App.Vector(1, 0, 0), App.Vector(0, 0.94904554, -0.315138957), App.Vector(0, 0.315138957, 0.94904554), "ZXY"))
sketch7.addGeometry([
    Part.Circle(App.Vector(-41.1, -49.3, 0), App.Vector(0, 0, 1), 1.9),
    Part.Circle(App.Vector(41.1, -49.3, 0), App.Vector(0, 0, 1), 1.9),
], False)
sketch7.addConstraint([
    Sketcher.Constraint("Equal", 0, 1),
    Sketcher.Constraint("Symmetric", 0, 3, 1, 3, -2),
    Sketcher.Constraint("Diameter", 0, Q("0.15 in")),
    Sketcher.Constraint("DistanceX", 0, 3, -1, 1, Q("41.141847 mm")),
    Sketcher.Constraint("DistanceY", 0, 3, -1, 1, Q("49.293425 mm")),
])
pocket6 = body.newObject("PartDesign::Pocket", "Pocket005")
pocket6.Profile = sketch7
pocket6.Length = Q("1.8 in")

# Sketch on an angled plane
sketch8 = body.newObject("Sketcher::SketchObject", "Sketch007")
sketch8.Placement = App.Placement(App.Vector(0, -20.31447, -1.895988), App.Rotation(App.Vector(1, 0, 0), App.Vector(0, 0.092928013, -0.99567283), App.Vector(0, 0.99567283, 0.092928013), "ZXY"))
sketch8.addGeometry([
    Part.Circle(App.Vector(0, -58, 0), App.Vector(0, 0, 1), 2),
    Part.Circle(App.Vector(35.6, -58, 0), App.Vector(0, 0, 1), 2),
    Part.Circle(App.Vector(-35.6, -58, 0), App.Vector(0, 0, 1), 2),
    Part.Circle(App.Vector(0, 44.7, 0), App.Vector(0, 0, 1), 2),
], False)
sketch8.addConstraint([
    Sketcher.Constraint("Equal", 0, 1),
    Sketcher.Constraint("Equal", 1, 2),
    Sketcher.Constraint("Equal", 2, 3),
    Sketcher.Constraint("Symmetric", 1, 3, 2, 3, -2),
    Sketcher.Constraint("PointOnObject", 0, 3, -2),
    Sketcher.Constraint("PointOnObject", 3, 3, -2),
    Sketcher.Constraint("Horizontal", 0, 3, 1, 3),
    Sketcher.Constraint("Diameter", 0, Q("0.16 in")),
    Sketcher.Constraint("DistanceX", -1, 1, 1, 3, Q("1.4 in")),
    Sketcher.Constraint("DistanceY", 0, 3, -1, 1, Q("57.996942 mm")),
    Sketcher.Constraint("DistanceY", -1, 1, 3, 3, Q("44.661295 mm")),
])
pocket7 = body.newObject("PartDesign::Pocket", "Pocket006")
pocket7.Profile = sketch8
pocket7.Length = 10
body2 = doc.addObject("PartDesign::Body", "Body001")

# Sketch on YZ plane
sketch9 = body2.newObject("Sketcher::SketchObject", "Sketch008")
sketch9.AttachmentSupport = (doc.getObject("YZ_Plane001"), [""])
sketch9.MapMode = "FlatFace"
sketch9.addGeometry(Part.Circle(App.Vector(8, -159, 0), App.Vector(0, 0, 1), 17), False)
sketch9.addConstraint([
    Sketcher.Constraint("Diameter", 0, Q("1.3 in")),
    Sketcher.Constraint("DistanceX", -1, 1, 0, 3, Q("8.344646 mm")),
    Sketcher.Constraint("DistanceY", 0, 3, -1, 1, Q("158.631315 mm")),
])
pad2 = body2.newObject("PartDesign::Pad", "Pad001")
pad2.Profile = sketch9
pad2.Length = Q("0.8 in")
pad2.Midplane = True
body3 = doc.addObject("PartDesign::Body", "Body002")

# Sketch on YZ plane
sketch10 = body3.newObject("Sketcher::SketchObject", "Sketch009")
sketch10.AttachmentSupport = (doc.getObject("YZ_Plane002"), [""])
sketch10.MapMode = "FlatFace"
sketch10.addGeometry(Part.Circle(App.Vector(6, -133, 0), App.Vector(0, 0, 1), 9), False)
sketch10.addConstraint([
    Sketcher.Constraint("Diameter", 0, Q("0.7 in")),
    Sketcher.Constraint("DistanceX", -1, 1, 0, 3, Q("5.988811 mm")),
    Sketcher.Constraint("DistanceY", 0, 3, -1, 1, Q("133.340802 mm")),
])
pad3 = body3.newObject("PartDesign::Pad", "Pad002")
pad3.Profile = sketch10
pad3.Length = Q("0.8 in")
pad3.Midplane = True
body4 = doc.addObject("PartDesign::Body", "Body003")

# Sketch on YZ plane
sketch11 = body4.newObject("Sketcher::SketchObject", "Sketch010")
sketch11.AttachmentSupport = (doc.getObject("YZ_Plane003"), [""])
sketch11.MapMode = "FlatFace"
sketch11.addGeometry(Part.Circle(App.Vector(17, -121, 0), App.Vector(0, 0, 1), 7), False)
sketch11.addConstraint([
    Sketcher.Constraint("Diameter", 0, Q("0.59 in")),
    Sketcher.Constraint("DistanceY", 0, 3, -1, 1, Q("120.91052 mm")),
    Sketcher.Constraint("DistanceX", -1, 1, 0, 3, Q("16.660773 mm")),
])
pad4 = body4.newObject("PartDesign::Pad", "Pad003")
pad4.Profile = sketch11
pad4.Length = Q("0.8 in")
pad4.Midplane = True
body5 = doc.addObject("PartDesign::Body", "Body004")

# Sketch on an angled plane
sketch12 = body5.newObject("Sketcher::SketchObject", "Sketch011")
sketch12.Placement = App.Placement(App.Vector(0, -27.901497, -2.604099), App.Rotation(App.Vector(1, 0, 0), App.Vector(0, -0.092928013, 0.99567283), App.Vector(0, -0.99567283, -0.092928013), "ZXY"))
sketch12.addGeometry([
    Part.LineSegment(App.Vector(5.1, -44.7, 0), App.Vector(5.1, 58, 0)),  # 0
    Part.ArcOfCircle(Part.Circle(App.Vector(0, 58, 0), App.Vector(0, 0, 1), 5.1), math.radians(0), math.radians(181)),  # 1
    Part.LineSegment(App.Vector(-5.1, 57.9, 0), App.Vector(-5.1, -44.7, 0)),  # 2
    Part.ArcOfCircle(Part.Circle(App.Vector(0, -44.7, 0), App.Vector(0, 0, 1), 5.1), math.radians(180), math.radians(360)),  # 3
    Part.Circle(App.Vector(0, -44.7, 0), App.Vector(0, 0, 1), 2),  # 4
    Part.Circle(App.Vector(0, 58, 0), App.Vector(0, 0, 1), 2),  # 5
], False)
sketch12.addConstraint([
    Sketcher.Constraint("Tangent", 0, 2, 1, 1),
    Sketcher.Constraint("Coincident", 1, 2, 2, 1),
    Sketcher.Constraint("Coincident", 2, 2, 3, 1),
    Sketcher.Constraint("Tangent", 3, 2, 0, 1),
    Sketcher.Constraint("Vertical", 0),
    Sketcher.Constraint("Coincident", 4, 3, 3, 3),
    Sketcher.Constraint("Coincident", 5, 3, 1, 3),
    Sketcher.Constraint("Equal", 1, 3),
    Sketcher.Constraint("Equal", 4, 5),
    Sketcher.Constraint("Symmetric", 2, 2, 3, 2, -2),
    Sketcher.Constraint("Radius", 1, Q("0.2 in")),
    Sketcher.Constraint("Diameter", 4, Q("0.16 in")),
    Sketcher.Constraint("DistanceY", 0, 1, 0, 2, Q("102.631809 mm")),
    Sketcher.Constraint("Distance", 2, Q("102.52097 mm")),
    Sketcher.Constraint("DistanceY", -1, 1, 1, 3, Q("57.970513 mm")),
])
pad5 = body5.newObject("PartDesign::Pad", "Pad004")
pad5.Profile = sketch12
pad5.Length = Q("0.125 in")
body6 = doc.addObject("PartDesign::Body", "Body005")

# Sketch on YZ plane
sketch13 = body6.newObject("Sketcher::SketchObject", "Sketch012")
sketch13.AttachmentSupport = (doc.getObject("YZ_Plane005"), [""])
sketch13.MapMode = "FlatFace"
sketch13.addGeometry(Part.Circle(App.Vector(16, -192, 0), App.Vector(0, 0, 1), 5), False)
sketch13.addConstraint([
    Sketcher.Constraint("Diameter", 0, Q("0.4 in")),
    Sketcher.Constraint("DistanceX", -1, 1, 0, 3, Q("16.38214 mm")),
    Sketcher.Constraint("DistanceY", 0, 3, -1, 1, Q("191.590215 mm")),
])
pad6 = body6.newObject("PartDesign::Pad", "Pad005")
pad6.Profile = sketch13
pad6.Length = Q("1.58 in")
pad6.Midplane = True

# Sketch on YZ plane
sketch14 = body6.newObject("Sketcher::SketchObject", "Sketch013")
sketch14.AttachmentSupport = (doc.getObject("YZ_Plane005"), [""])
sketch14.MapMode = "FlatFace"
sketch14.AttachmentOffset = App.Placement(App.Vector(0, 0, -0.79 * 25.4), App.Rotation())
sketch14.addGeometry([
    Part.LineSegment(App.Vector(20.6, -191.6, 0), App.Vector(12.2, -191.6, 0)),
    Part.ArcOfCircle(Part.Circle(App.Vector(16.4, -191.6, 0), App.Vector(0, 0, 1), 4.2), math.radians(0), math.radians(180)),
], False)
sketch14.addGeometry(Part.LineSegment(App.Vector(20.6, -191.6, 0), App.Vector(12.2, -191.6, 0)), True)  # axis
sketch14.addConstraint([
    Sketcher.Constraint("Coincident", 0, 1, 1, 1),
    Sketcher.Constraint("Coincident", 1, 2, 0, 2),
    Sketcher.Constraint("Horizontal", 0),
    Sketcher.Constraint("Horizontal", 2),
    Sketcher.Constraint("Coincident", 2, 1, 0, 1),
    Sketcher.Constraint("Horizontal", 1, 3, 0, 1),
    Sketcher.Constraint("Equal", 0, 2),
    Sketcher.Constraint("Radius", 1, Q("4.217462 mm")),
    Sketcher.Constraint("DistanceX", -1, 1, 1, 3, Q("16.415918 mm")),
    Sketcher.Constraint("DistanceY", 1, 3, -1, 1, Q("191.590215 mm")),
])
revolution = body6.newObject("PartDesign::Revolution", "Revolution")
revolution.Profile = sketch14
revolution.ReferenceAxis = (sketch14, ["Axis0"])
revolution.Angle = 360
doc.recompute()

mirrored = body6.newObject("PartDesign::Mirrored", "Mirrored")
mirrored.Originals = [revolution]
mirrored.MirrorPlane = (doc.getObject("YZ_Plane005"), [""])
body6.Tip = mirrored

doc.recompute()
